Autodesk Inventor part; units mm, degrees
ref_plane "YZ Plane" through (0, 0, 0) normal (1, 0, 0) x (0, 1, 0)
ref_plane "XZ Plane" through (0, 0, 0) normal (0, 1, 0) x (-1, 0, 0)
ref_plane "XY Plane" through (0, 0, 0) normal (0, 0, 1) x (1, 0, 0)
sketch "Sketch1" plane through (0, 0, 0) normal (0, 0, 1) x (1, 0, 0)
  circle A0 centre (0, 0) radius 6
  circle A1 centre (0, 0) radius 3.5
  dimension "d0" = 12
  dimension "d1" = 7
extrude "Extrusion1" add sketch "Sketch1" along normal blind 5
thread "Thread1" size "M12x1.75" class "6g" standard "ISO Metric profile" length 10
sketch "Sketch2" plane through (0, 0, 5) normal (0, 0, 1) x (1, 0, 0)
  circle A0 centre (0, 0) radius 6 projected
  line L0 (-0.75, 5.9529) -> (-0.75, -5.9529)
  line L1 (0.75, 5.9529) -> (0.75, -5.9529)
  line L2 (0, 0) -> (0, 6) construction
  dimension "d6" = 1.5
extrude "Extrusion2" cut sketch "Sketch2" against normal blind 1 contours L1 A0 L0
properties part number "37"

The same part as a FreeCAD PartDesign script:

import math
import FreeCAD as App
import Part
import Sketcher
Q = App.Units.Quantity

doc = App.newDocument("Part")
body = doc.addObject("PartDesign::Body", "Body")

# Sketch on XY plane
sketch1 = doc.addObject("Sketcher::SketchObject", "Sketch")
body.addObject(sketch1)
sketch1.AttachmentSupport = (doc.XY_Plane, [""])
sketch1.MapMode = "FlatFace"
sketch1.addGeometry([
    Part.Circle(App.Vector(0, 0, 0), App.Vector(0, 0, 1), 6),
    Part.Circle(App.Vector(0, 0, 0), App.Vector(0, 0, 1), 3.5),
], False)
sketch1.addConstraint([
    Sketcher.Constraint("Coincident", 0, 3, -1, 1),
    Sketcher.Constraint("Coincident", 1, 3, -1, 1),
    Sketcher.Constraint("Diameter", 0, Q("12 mm")),
    Sketcher.Constraint("Diameter", 1, Q("7 mm")),
])
pad1 = doc.addObject("PartDesign::Pad", "Pad")
body.addObject(pad1)
pad1.Profile = sketch1
pad1.Length = 5

# Sketch on XY plane
sketch2 = doc.addObject("Sketcher::SketchObject", "Sketch001")
body.addObject(sketch2)
sketch2.AttachmentSupport = (doc.XY_Plane, [""])
sketch2.MapMode = "FlatFace"
sketch2.AttachmentOffset = App.Placement(App.Vector(0, 0, 5), App.Rotation())
sketch2.addGeometry([
    Part.LineSegment(App.Vector(0.75, -5.9529, 0), App.Vector(0.75, 5.9529, 0)),
    Part.ArcOfCircle(Part.Circle(App.Vector(0, 0, 0), App.Vector(0, 0, 1), 6), math.radians(82.819196), math.radians(97.180804)),
    Part.LineSegment(App.Vector(-0.75, 5.9529, 0), App.Vector(-0.75, -5.9529, 0)),
    Part.ArcOfCircle(Part.Circle(App.Vector(0, 0, 0), App.Vector(0, 0, 1), 6), math.radians(-97.180804), math.radians(-82.819196)),
], False)
sketch2.addConstraint([
    Sketcher.Constraint("Coincident", 0, 2, 1, 1),
    Sketcher.Constraint("Coincident", 1, 2, 2, 1),
    Sketcher.Constraint("Coincident", 2, 2, 3, 1),
    Sketcher.Constraint("Coincident", 3, 2, 0, 1),
    Sketcher.Constraint("Vertical", 0),
    Sketcher.Constraint("Vertical", 2),
    Sketcher.Constraint("Coincident", 1, 3, -1, 1),
    Sketcher.Constraint("Coincident", 3, 3, -1, 1),
    Sketcher.Constraint("Equal", 1, 3),
    Sketcher.Constraint("Horizontal", 0, 2, 1, 2),
    Sketcher.Constraint("Radius", 1, Q("6 mm")),
    Sketcher.Constraint("DistanceX", 1, 2, 0, 2, Q("1.5 mm")),
])
pocket1 = doc.addObject("PartDesign::Pocket", "Pocket")
body.addObject(pocket1)
pocket1.Profile = sketch2
pocket1.Length = 1

doc.recompute()
